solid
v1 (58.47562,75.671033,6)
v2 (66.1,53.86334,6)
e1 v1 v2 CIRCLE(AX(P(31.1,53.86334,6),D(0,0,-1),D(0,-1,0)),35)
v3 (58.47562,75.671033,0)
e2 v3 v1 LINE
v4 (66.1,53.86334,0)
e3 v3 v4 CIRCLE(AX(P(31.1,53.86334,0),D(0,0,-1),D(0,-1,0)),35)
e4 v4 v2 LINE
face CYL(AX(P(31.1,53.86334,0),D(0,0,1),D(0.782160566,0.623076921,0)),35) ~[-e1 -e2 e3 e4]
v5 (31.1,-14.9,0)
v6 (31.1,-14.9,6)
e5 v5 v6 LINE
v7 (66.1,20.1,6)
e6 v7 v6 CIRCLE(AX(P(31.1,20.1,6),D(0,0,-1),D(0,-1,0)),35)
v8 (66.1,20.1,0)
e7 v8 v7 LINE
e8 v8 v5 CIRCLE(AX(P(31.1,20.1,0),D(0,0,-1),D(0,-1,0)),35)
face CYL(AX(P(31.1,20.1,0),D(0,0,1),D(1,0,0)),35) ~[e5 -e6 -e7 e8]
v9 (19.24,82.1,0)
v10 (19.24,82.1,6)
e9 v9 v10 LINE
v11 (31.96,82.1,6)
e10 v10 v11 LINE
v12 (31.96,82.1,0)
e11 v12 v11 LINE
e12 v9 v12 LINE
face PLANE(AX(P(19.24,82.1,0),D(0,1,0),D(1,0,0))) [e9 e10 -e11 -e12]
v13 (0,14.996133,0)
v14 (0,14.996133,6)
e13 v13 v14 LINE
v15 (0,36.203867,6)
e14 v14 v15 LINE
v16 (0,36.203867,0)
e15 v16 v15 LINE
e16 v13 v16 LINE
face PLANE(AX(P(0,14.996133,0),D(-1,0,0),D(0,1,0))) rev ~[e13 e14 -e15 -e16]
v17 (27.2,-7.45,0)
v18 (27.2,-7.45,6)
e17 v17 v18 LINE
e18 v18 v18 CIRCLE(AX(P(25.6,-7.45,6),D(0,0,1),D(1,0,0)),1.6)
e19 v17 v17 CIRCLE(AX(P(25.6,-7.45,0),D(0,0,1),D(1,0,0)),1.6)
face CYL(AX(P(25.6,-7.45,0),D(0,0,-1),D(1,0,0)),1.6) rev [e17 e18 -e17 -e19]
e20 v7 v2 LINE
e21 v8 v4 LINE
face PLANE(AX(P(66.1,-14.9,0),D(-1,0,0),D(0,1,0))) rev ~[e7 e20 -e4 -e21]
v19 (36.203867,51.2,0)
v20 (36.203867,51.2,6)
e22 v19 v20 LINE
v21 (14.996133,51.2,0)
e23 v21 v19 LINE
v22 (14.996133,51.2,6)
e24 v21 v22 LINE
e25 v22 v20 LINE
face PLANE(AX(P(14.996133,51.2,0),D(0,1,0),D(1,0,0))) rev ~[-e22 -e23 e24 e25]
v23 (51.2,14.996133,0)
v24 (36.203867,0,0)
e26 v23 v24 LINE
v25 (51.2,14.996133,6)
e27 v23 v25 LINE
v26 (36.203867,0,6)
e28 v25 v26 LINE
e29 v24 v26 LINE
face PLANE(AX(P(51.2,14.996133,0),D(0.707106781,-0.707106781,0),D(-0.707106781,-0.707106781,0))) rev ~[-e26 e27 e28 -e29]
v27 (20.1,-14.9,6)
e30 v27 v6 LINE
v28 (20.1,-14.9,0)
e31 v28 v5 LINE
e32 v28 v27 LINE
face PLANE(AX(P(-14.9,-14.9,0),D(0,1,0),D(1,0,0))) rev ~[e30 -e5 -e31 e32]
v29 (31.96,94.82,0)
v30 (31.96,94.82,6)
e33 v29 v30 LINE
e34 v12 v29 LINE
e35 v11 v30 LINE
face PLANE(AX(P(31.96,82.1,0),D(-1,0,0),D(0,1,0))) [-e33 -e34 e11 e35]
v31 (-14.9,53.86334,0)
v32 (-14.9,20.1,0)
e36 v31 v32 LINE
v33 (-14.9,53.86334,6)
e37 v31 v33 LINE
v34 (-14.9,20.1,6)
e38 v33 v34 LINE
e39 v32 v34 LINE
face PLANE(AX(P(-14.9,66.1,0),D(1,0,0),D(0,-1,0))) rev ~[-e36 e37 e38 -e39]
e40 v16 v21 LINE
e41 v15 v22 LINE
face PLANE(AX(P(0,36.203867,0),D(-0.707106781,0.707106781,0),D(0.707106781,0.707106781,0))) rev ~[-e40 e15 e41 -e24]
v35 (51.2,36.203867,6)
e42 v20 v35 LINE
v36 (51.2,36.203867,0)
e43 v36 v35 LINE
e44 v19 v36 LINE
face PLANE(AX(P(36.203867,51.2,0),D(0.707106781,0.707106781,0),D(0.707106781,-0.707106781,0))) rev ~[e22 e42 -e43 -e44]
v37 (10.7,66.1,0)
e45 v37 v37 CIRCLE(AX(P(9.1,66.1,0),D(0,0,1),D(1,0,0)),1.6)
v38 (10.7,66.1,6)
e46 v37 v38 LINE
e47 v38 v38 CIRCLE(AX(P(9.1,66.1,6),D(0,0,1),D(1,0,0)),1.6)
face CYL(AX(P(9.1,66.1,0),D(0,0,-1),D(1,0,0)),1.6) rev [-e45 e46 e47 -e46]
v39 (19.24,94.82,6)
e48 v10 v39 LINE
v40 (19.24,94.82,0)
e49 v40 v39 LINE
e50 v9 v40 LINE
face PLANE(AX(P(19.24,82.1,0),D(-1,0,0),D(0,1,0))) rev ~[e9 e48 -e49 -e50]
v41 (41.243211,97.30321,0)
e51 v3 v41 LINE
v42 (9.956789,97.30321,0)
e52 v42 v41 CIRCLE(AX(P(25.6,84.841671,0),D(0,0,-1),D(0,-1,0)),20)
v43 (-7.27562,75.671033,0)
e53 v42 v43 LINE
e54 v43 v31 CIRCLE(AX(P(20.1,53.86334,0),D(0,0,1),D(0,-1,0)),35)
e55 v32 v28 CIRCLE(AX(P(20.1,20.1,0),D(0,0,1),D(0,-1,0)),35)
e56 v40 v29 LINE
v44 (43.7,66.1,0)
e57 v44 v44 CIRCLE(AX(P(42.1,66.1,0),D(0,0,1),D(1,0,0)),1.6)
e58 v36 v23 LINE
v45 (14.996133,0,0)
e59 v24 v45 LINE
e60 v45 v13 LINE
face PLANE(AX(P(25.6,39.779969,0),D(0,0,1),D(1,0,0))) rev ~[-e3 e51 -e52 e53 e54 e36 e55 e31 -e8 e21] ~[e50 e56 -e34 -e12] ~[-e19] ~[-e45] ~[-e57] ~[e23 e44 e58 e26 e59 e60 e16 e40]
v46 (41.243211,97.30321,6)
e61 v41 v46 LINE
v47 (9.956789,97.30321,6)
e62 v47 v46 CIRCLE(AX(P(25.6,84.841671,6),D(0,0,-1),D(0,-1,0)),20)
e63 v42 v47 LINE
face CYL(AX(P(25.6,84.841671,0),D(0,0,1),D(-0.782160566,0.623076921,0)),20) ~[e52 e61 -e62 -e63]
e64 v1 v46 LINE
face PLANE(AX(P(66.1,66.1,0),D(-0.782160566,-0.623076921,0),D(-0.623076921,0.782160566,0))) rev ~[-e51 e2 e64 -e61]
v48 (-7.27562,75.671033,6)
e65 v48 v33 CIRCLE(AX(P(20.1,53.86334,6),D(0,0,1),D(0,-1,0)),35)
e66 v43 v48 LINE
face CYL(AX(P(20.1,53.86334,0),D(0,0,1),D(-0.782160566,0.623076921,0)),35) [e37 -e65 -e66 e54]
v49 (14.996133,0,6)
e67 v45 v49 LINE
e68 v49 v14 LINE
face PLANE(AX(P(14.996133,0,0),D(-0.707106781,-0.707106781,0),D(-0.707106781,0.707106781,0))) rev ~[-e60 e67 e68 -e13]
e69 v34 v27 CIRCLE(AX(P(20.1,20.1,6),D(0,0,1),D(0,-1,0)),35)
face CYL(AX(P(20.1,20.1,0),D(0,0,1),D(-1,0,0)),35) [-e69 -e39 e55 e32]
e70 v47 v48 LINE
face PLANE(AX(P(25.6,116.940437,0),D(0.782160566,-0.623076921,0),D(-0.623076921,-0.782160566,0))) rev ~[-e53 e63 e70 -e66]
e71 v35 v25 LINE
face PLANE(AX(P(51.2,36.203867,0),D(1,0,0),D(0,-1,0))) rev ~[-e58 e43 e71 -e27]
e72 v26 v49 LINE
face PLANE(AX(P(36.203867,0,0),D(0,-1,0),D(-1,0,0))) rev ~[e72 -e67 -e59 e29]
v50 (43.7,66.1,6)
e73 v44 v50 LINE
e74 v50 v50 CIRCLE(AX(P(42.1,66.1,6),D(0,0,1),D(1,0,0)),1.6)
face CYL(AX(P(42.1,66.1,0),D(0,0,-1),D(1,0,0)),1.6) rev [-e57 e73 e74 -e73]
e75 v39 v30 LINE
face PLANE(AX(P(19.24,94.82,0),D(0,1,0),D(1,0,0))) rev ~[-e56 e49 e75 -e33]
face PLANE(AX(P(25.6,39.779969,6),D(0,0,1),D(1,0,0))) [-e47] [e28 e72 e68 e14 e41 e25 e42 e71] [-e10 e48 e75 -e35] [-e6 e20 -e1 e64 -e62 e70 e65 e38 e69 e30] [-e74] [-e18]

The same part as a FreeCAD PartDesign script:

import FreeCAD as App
import Part
import Sketcher

V = App.Vector
Q = App.Units.Quantity


def edges_at(feature, points):
    """Names of the edges that pass closest to the given points."""
    edges = feature.Shape.Edges
    near = lambda p: min(range(len(edges)), key=lambda i: edges[i].distToShape(Part.Vertex(*p))[0])
    return sorted({f"Edge{near(p) + 1}" for p in points})

doc = App.newDocument("Part")
body = doc.addObject("PartDesign::Body", "Body")

# Sketch on XY plane
sketch1 = body.newObject("Sketcher::SketchObject", "Sketch")
sketch1.AttachmentSupport = (doc.getObject("XY_Plane"), [""])
sketch1.MapMode = "FlatFace"
sketch1.addGeometry(Part.LineSegment(V(25.6, 116.9, 0), V(-14.9, 66.1, 0)), False)
sketch1.addGeometry(Part.LineSegment(V(-14.9, 66.1, 0), V(-14.9, -14.9, 0)), False)
sketch1.addGeometry(Part.LineSegment(V(-14.9, -14.9, 0), V(66.1, -14.9, 0)), False)
sketch1.addGeometry(Part.LineSegment(V(66.1, -14.9, 0), V(66.1, 66.1, 0)), False)
sketch1.addGeometry(Part.LineSegment(V(66.1, 66.1, 0), V(25.6, 116.9, 0)), False)
sketch1.addGeometry(Part.Circle(V(25.6, -7.5, 0), V(0, 0, 1), 1.6), False)
sketch1.addGeometry(Part.LineSegment(V(15, 0, 0), V(0, 15, 0)), False)
sketch1.addGeometry(Part.LineSegment(V(0, 15, 0), V(0, 36.2, 0)), False)
sketch1.addGeometry(Part.LineSegment(V(0, 36.2, 0), V(15, 51.2, 0)), False)
sketch1.addGeometry(Part.LineSegment(V(15, 51.2, 0), V(36.2, 51.2, 0)), False)
sketch1.addGeometry(Part.LineSegment(V(36.2, 51.2, 0), V(51.2, 36.2, 0)), False)
sketch1.addGeometry(Part.LineSegment(V(51.2, 36.2, 0), V(51.2, 15, 0)), False)
sketch1.addGeometry(Part.LineSegment(V(51.2, 15, 0), V(36.2, 0, 0)), False)
sketch1.addGeometry(Part.LineSegment(V(36.2, 0, 0), V(15, 0, 0)), False)
sketch1.addGeometry(Part.Circle(V(9.1, 66.1, 0), V(0, 0, 1), 1.6), False)
sketch1.addGeometry(Part.Circle(V(42.1, 66.1, 0), V(0, 0, 1), 1.6), False)
sketch1.addGeometry(Part.LineSegment(V(32, 82.1, 0), V(19.2, 82.1, 0)), False)
sketch1.addGeometry(Part.LineSegment(V(19.2, 82.1, 0), V(19.2, 94.8, 0)), False)
sketch1.addGeometry(Part.LineSegment(V(19.2, 94.8, 0), V(32, 94.8, 0)), False)
sketch1.addGeometry(Part.LineSegment(V(32, 94.8, 0), V(32, 82.1, 0)), False)
sketch1.addConstraint(Sketcher.Constraint("Coincident", 0, 2, 1, 1))
sketch1.addConstraint(Sketcher.Constraint("Coincident", 1, 2, 2, 1))
sketch1.addConstraint(Sketcher.Constraint("Coincident", 2, 2, 3, 1))
sketch1.addConstraint(Sketcher.Constraint("Coincident", 3, 2, 4, 1))
sketch1.addConstraint(Sketcher.Constraint("Coincident", 4, 2, 0, 1))
sketch1.addConstraint(Sketcher.Constraint("Coincident", 6, 2, 7, 1))
sketch1.addConstraint(Sketcher.Constraint("Coincident", 7, 2, 8, 1))
sketch1.addConstraint(Sketcher.Constraint("Coincident", 8, 2, 9, 1))
sketch1.addConstraint(Sketcher.Constraint("Coincident", 9, 2, 10, 1))
sketch1.addConstraint(Sketcher.Constraint("Coincident", 10, 2, 11, 1))
sketch1.addConstraint(Sketcher.Constraint("Coincident", 11, 2, 12, 1))
sketch1.addConstraint(Sketcher.Constraint("Coincident", 12, 2, 13, 1))
sketch1.addConstraint(Sketcher.Constraint("Coincident", 13, 2, 6, 1))
sketch1.addConstraint(Sketcher.Constraint("Coincident", 16, 2, 17, 1))
sketch1.addConstraint(Sketcher.Constraint("Coincident", 17, 2, 18, 1))
sketch1.addConstraint(Sketcher.Constraint("Coincident", 18, 2, 19, 1))
sketch1.addConstraint(Sketcher.Constraint("Coincident", 19, 2, 16, 1))
sketch1.addConstraint(Sketcher.Constraint("Vertical", 1))
sketch1.addConstraint(Sketcher.Constraint("Horizontal", 2))
sketch1.addConstraint(Sketcher.Constraint("Vertical", 3))
sketch1.addConstraint(Sketcher.Constraint("Vertical", 7))
sketch1.addConstraint(Sketcher.Constraint("Horizontal", 9))
sketch1.addConstraint(Sketcher.Constraint("Vertical", 11))
sketch1.addConstraint(Sketcher.Constraint("Horizontal", 13))
sketch1.addConstraint(Sketcher.Constraint("Horizontal", 16))
sketch1.addConstraint(Sketcher.Constraint("Vertical", 17))
sketch1.addConstraint(Sketcher.Constraint("Horizontal", 18))
sketch1.addConstraint(Sketcher.Constraint("Vertical", 19))
sketch1.addConstraint(Sketcher.Constraint("Equal", 5, 14))
sketch1.addConstraint(Sketcher.Constraint("Equal", 14, 15))
sketch1.addConstraint(Sketcher.Constraint("PointOnObject", 6, 2, -2))
sketch1.addConstraint(Sketcher.Constraint("PointOnObject", 12, 2, -1))
sketch1.addConstraint(Sketcher.Constraint("Perpendicular", 6, 8))
sketch1.addConstraint(Sketcher.Constraint("Perpendicular", 8, 10))
sketch1.addConstraint(Sketcher.Constraint("Perpendicular", 10, 12))
sketch1.addConstraint(Sketcher.Constraint("Horizontal", 14, 3, 15, 3))
sketch1.addConstraint(Sketcher.Constraint("Horizontal", 15, 3, 0, 2))
sketch1.addConstraint(Sketcher.Constraint("Horizontal", 0, 2, 3, 2))
sketch1.addConstraint(Sketcher.Constraint("Horizontal", 7, 2, 10, 2))
sketch1.addConstraint(Sketcher.Constraint("Horizontal", 6, 2, 11, 2))
sketch1.addConstraint(Sketcher.Constraint("Vertical", 5, 3, 4, 2))
sketch1.addConstraint(Sketcher.Constraint("Vertical", 9, 2, 12, 2))
sketch1.addConstraint(Sketcher.Constraint("Vertical", 8, 2, 13, 2))
sketch1.addConstraint(Sketcher.Constraint("Equal", 2, 1))
sketch1.addConstraint(Sketcher.Constraint("Equal", 13, 7))
sketch1.addConstraint(Sketcher.Constraint("Equal", 18, 17))
sketch1.addConstraint(Sketcher.Constraint("Equal", 0, 4))
sketch1.addConstraint(Sketcher.Constraint("Diameter", 5, Q("3.2 mm")))
sketch1.addConstraint(Sketcher.Constraint("DistanceX", 2, 1, 2, 2, Q("81 mm")))
sketch1.addConstraint(Sketcher.Constraint("Distance", 0, Q("65 mm")))
sketch1.addConstraint(Sketcher.Constraint("DistanceX", 14, 3, 15, 3, Q("33 mm")))
sketch1.addConstraint(Sketcher.Constraint("DistanceX", 0, 2, 14, 3, Q("24 mm")))
sketch1.addConstraint(Sketcher.Constraint("DistanceY", 14, 3, 16, 2, Q("16 mm")))
sketch1.addConstraint(Sketcher.Constraint("DistanceX", 16, 2, 16, 1, Q("12.72 mm")))
sketch1.addConstraint(Sketcher.Constraint("DistanceX", -1, 1, 5, 3, Q("25.6 mm")))
sketch1.addConstraint(Sketcher.Constraint("DistanceY", -1, 1, 14, 3, Q("66.1 mm")))
sketch1.addConstraint(Sketcher.Constraint("DistanceY", -1, 1, 8, 2, Q("51.2 mm")))
sketch1.addConstraint(Sketcher.Constraint("DistanceY", 5, 3, -1, 1, Q("7.45 mm")))
sketch1.addConstraint(Sketcher.Constraint("DistanceX", -1, 1, 16, 2, Q("19.24 mm")))
sketch1.addConstraint(Sketcher.Constraint("DistanceX", 9, 1, 9, 2, Q("21.207734 mm")))
pad1 = body.newObject("PartDesign::Pad", "Pad")
pad1.Profile = sketch1
pad1.Length = 6
doc.recompute()

fillet = body.newObject("PartDesign::Fillet", "Fillet")
fillet.Base = (pad1, edges_at(pad1, [
    (66.1, -14.9, 3),
    (-14.9, -14.9, 3),
    (-14.9, 66.1, 3),
    (66.1, 66.1, 3),
]))
fillet.Radius = 35
doc.recompute()

fillet2 = body.newObject("PartDesign::Fillet", "Fillet001")
fillet2.Base = (fillet, edges_at(fillet, [(25.6, 116.94, 3)]))
fillet2.Radius = 20

doc.recompute()
